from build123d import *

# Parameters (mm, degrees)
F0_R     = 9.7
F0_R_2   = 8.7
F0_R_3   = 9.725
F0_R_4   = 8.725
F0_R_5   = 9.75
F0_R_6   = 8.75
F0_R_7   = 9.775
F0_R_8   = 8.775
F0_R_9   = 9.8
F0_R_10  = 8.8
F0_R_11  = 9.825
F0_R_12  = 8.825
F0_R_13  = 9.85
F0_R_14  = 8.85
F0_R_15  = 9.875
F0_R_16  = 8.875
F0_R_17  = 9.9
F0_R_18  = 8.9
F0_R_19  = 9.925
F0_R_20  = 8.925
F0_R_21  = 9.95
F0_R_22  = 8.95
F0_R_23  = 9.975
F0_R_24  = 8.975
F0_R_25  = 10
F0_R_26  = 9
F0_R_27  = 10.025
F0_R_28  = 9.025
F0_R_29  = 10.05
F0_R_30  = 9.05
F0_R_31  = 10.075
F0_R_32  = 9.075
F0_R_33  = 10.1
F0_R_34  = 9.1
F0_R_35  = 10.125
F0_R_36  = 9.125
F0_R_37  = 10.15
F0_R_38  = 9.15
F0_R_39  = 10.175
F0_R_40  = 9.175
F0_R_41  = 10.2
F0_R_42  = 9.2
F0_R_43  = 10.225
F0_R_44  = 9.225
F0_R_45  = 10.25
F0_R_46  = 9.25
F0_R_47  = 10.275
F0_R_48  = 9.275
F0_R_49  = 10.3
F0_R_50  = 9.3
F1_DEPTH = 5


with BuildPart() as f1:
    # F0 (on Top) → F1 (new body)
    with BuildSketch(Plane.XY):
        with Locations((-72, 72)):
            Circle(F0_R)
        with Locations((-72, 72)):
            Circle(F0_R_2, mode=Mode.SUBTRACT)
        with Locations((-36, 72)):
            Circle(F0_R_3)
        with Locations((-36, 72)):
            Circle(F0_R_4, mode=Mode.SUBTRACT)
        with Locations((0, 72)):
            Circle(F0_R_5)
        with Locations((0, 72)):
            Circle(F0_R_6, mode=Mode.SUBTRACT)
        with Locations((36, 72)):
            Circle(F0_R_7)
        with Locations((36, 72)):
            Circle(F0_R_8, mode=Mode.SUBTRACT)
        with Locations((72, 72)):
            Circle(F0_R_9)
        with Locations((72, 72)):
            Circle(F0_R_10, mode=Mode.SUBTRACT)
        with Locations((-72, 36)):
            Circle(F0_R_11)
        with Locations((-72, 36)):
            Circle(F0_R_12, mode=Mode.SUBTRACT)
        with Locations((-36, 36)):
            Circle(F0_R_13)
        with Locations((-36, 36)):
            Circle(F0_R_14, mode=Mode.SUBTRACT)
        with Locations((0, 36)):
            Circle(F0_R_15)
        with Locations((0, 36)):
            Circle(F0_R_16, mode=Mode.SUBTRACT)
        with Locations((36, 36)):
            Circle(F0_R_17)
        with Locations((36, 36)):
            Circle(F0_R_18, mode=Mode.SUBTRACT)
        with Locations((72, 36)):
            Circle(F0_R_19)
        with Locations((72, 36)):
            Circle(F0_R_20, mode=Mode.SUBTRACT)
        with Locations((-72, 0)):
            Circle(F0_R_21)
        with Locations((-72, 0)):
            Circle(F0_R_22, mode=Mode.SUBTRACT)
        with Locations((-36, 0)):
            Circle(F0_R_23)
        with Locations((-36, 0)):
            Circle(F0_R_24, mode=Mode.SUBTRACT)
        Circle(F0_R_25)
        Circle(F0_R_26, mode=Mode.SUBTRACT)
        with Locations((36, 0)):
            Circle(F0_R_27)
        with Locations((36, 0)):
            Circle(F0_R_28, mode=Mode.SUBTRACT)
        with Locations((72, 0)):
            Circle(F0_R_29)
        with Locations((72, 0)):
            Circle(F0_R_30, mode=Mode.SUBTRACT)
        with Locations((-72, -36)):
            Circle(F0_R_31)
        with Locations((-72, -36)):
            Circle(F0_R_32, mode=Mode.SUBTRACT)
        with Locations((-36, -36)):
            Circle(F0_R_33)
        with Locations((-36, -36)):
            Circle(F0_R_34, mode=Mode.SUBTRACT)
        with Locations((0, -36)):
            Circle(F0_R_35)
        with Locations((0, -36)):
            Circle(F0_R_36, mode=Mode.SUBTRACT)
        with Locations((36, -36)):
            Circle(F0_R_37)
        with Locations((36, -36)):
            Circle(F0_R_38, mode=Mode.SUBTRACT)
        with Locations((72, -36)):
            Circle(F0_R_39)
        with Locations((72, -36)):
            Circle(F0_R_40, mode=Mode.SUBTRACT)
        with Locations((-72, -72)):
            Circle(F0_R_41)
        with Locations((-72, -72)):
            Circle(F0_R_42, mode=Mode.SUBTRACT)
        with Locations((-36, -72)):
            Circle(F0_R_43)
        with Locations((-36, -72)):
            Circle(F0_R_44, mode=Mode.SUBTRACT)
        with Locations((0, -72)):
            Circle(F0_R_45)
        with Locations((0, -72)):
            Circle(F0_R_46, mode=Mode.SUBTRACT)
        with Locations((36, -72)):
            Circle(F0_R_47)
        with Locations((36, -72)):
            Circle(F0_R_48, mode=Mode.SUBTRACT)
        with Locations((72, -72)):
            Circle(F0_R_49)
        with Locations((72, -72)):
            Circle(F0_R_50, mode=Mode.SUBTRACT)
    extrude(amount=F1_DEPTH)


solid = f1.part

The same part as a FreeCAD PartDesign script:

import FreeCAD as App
import Part
import Sketcher
from FreeCAD import Vector

doc = App.newDocument("Part")
body = doc.addObject("PartDesign::Body", "Body")
body.AllowCompound = True

sketch1 = body.newObject("Sketcher::SketchObject", "Sketch")
sketch1.AttachmentSupport = (doc.getObject("XY_Plane"), [""])
sketch1.MapMode = "FlatFace"
sketch1.addGeometry([
    Part.Circle(Vector(-72, 72, 0), Vector(0, 0, 1), 10),
    Part.Circle(Vector(-72, 72, 0), Vector(0, 0, 1), 9),
    Part.Circle(Vector(-36, 72, 0), Vector(0, 0, 1), 10),
    Part.Circle(Vector(-36, 72, 0), Vector(0, 0, 1), 9),
    Part.Circle(Vector(0, 72, 0), Vector(0, 0, 1), 10),
    Part.Circle(Vector(0, 72, 0), Vector(0, 0, 1), 9),
    Part.Circle(Vector(36, 72, 0), Vector(0, 0, 1), 10),
    Part.Circle(Vector(36, 72, 0), Vector(0, 0, 1), 9),
    Part.Circle(Vector(72, 72, 0), Vector(0, 0, 1), 10),
    Part.Circle(Vector(72, 72, 0), Vector(0, 0, 1), 9),
    Part.Circle(Vector(-72, 36, 0), Vector(0, 0, 1), 10),
    Part.Circle(Vector(-72, 36, 0), Vector(0, 0, 1), 9),
    Part.Circle(Vector(-36, 36, 0), Vector(0, 0, 1), 10),
    Part.Circle(Vector(-36, 36, 0), Vector(0, 0, 1), 9),
    Part.Circle(Vector(0, 36, 0), Vector(0, 0, 1), 10),
    Part.Circle(Vector(0, 36, 0), Vector(0, 0, 1), 9),
    Part.Circle(Vector(36, 36, 0), Vector(0, 0, 1), 10),
    Part.Circle(Vector(36, 36, 0), Vector(0, 0, 1), 9),
    Part.Circle(Vector(72, 36, 0), Vector(0, 0, 1), 10),
    Part.Circle(Vector(72, 36, 0), Vector(0, 0, 1), 9),
    Part.Circle(Vector(-72, 0, 0), Vector(0, 0, 1), 10),
    Part.Circle(Vector(-72, 0, 0), Vector(0, 0, 1), 9),
    Part.Circle(Vector(-36, 0, 0), Vector(0, 0, 1), 10),
    Part.Circle(Vector(-36, 0, 0), Vector(0, 0, 1), 9),
    Part.Circle(Vector(0, 0, 0), Vector(0, 0, 1), 10),
    Part.Circle(Vector(0, 0, 0), Vector(0, 0, 1), 9),
    Part.Circle(Vector(36, 0, 0), Vector(0, 0, 1), 10),
    Part.Circle(Vector(36, 0, 0), Vector(0, 0, 1), 9),
    Part.Circle(Vector(72, 0, 0), Vector(0, 0, 1), 10),
    Part.Circle(Vector(72, 0, 0), Vector(0, 0, 1), 9),
    Part.Circle(Vector(-72, -36, 0), Vector(0, 0, 1), 10),
    Part.Circle(Vector(-72, -36, 0), Vector(0, 0, 1), 9),
    Part.Circle(Vector(-36, -36, 0), Vector(0, 0, 1), 10),
    Part.Circle(Vector(-36, -36, 0), Vector(0, 0, 1), 9),
    Part.Circle(Vector(0, -36, 0), Vector(0, 0, 1), 10),
    Part.Circle(Vector(0, -36, 0), Vector(0, 0, 1), 9),
    Part.Circle(Vector(36, -36, 0), Vector(0, 0, 1), 10),
    Part.Circle(Vector(36, -36, 0), Vector(0, 0, 1), 9),
    Part.Circle(Vector(72, -36, 0), Vector(0, 0, 1), 10),
    Part.Circle(Vector(72, -36, 0), Vector(0, 0, 1), 9),
    Part.Circle(Vector(-72, -72, 0), Vector(0, 0, 1), 10),
    Part.Circle(Vector(-72, -72, 0), Vector(0, 0, 1), 9),
    Part.Circle(Vector(-36, -72, 0), Vector(0, 0, 1), 10),
    Part.Circle(Vector(-36, -72, 0), Vector(0, 0, 1), 9),
    Part.Circle(Vector(0, -72, 0), Vector(0, 0, 1), 10),
    Part.Circle(Vector(0, -72, 0), Vector(0, 0, 1), 9),
    Part.Circle(Vector(36, -72, 0), Vector(0, 0, 1), 10),
    Part.Circle(Vector(36, -72, 0), Vector(0, 0, 1), 9),
    Part.Circle(Vector(72, -72, 0), Vector(0, 0, 1), 10),
    Part.Circle(Vector(72, -72, 0), Vector(0, 0, 1), 9),
], False)
sketch1.addConstraint([
    Sketcher.Constraint("Coincident", 24, 3, -1, 1),
    Sketcher.Constraint("Coincident", 25, 3, -1, 1),
    Sketcher.Constraint("Coincident", 1, 3, 0, 3),
    Sketcher.Constraint("Coincident", 3, 3, 2, 3),
    Sketcher.Constraint("Coincident", 5, 3, 4, 3),
    Sketcher.Constraint("Coincident", 7, 3, 6, 3),
    Sketcher.Constraint("Coincident", 9, 3, 8, 3),
    Sketcher.Constraint("Coincident", 11, 3, 10, 3),
    Sketcher.Constraint("Coincident", 13, 3, 12, 3),
    Sketcher.Constraint("Coincident", 15, 3, 14, 3),
    Sketcher.Constraint("Coincident", 17, 3, 16, 3),
    Sketcher.Constraint("Coincident", 19, 3, 18, 3),
    Sketcher.Constraint("Coincident", 21, 3, 20, 3),
    Sketcher.Constraint("Coincident", 23, 3, 22, 3),
    Sketcher.Constraint("Coincident", 27, 3, 26, 3),
    Sketcher.Constraint("Coincident", 29, 3, 28, 3),
    Sketcher.Constraint("Coincident", 31, 3, 30, 3),
    Sketcher.Constraint("Coincident", 33, 3, 32, 3),
    Sketcher.Constraint("Coincident", 35, 3, 34, 3),
    Sketcher.Constraint("Coincident", 37, 3, 36, 3),
    Sketcher.Constraint("Coincident", 39, 3, 38, 3),
    Sketcher.Constraint("Coincident", 41, 3, 40, 3),
    Sketcher.Constraint("Coincident", 43, 3, 42, 3),
    Sketcher.Constraint("Coincident", 45, 3, 44, 3),
    Sketcher.Constraint("Coincident", 47, 3, 46, 3),
    Sketcher.Constraint("Coincident", 49, 3, 48, 3),
    Sketcher.Constraint("Symmetric", 22, 3, 26, 3, -1, 1),
    Sketcher.Constraint("Symmetric", 20, 3, 28, 3, -1, 1),
    Sketcher.Constraint("Symmetric", 18, 3, 30, 3, -1, 1),
    Sketcher.Constraint("Symmetric", 16, 3, 32, 3, -1, 1),
    Sketcher.Constraint("Symmetric", 14, 3, 34, 3, -1, 1),
    Sketcher.Constraint("Symmetric", 12, 3, 36, 3, -1, 1),
    Sketcher.Constraint("Symmetric", 10, 3, 38, 3, -1, 1),
    Sketcher.Constraint("Symmetric", 8, 3, 40, 3, -1, 1),
    Sketcher.Constraint("Symmetric", 6, 3, 42, 3, -1, 1),
    Sketcher.Constraint("Symmetric", 4, 3, 44, 3, -1, 1),
    Sketcher.Constraint("Symmetric", 2, 3, 46, 3, -1, 1),
    Sketcher.Constraint("Symmetric", 0, 3, 48, 3, -1, 1),
    Sketcher.Constraint("Symmetric", 2, 3, 6, 3, -2),
    Sketcher.Constraint("Symmetric", 0, 3, 8, 3, -2),
    Sketcher.Constraint("Symmetric", 12, 3, 16, 3, -2),
    Sketcher.Constraint("Symmetric", 10, 3, 18, 3, -2),
    Sketcher.Constraint("PointOnObject", 4, 3, -2),
    Sketcher.Constraint("PointOnObject", 14, 3, -2),
    Sketcher.Constraint("PointOnObject", 20, 3, -1),
    Sketcher.Constraint("PointOnObject", 22, 3, -1),
    Sketcher.Constraint("Horizontal", 1, 3, 2, 3),
    Sketcher.Constraint("Horizontal", 3, 3, 4, 3),
    Sketcher.Constraint("Horizontal", 11, 3, 12, 3),
    Sketcher.Constraint("Horizontal", 13, 3, 14, 3),
    Sketcher.Constraint("Vertical", 1, 3, 10, 3),
    Sketcher.Constraint("Vertical", 3, 3, 12, 3),
    Sketcher.Constraint("Vertical", 11, 3, 20, 3),
    Sketcher.Constraint("Vertical", 13, 3, 22, 3),
    Sketcher.Constraint("Diameter", 24, 20.0),
    Sketcher.Constraint("Diameter", 25, 18.0),
    Sketcher.Constraint("Diameter", 0, 19.4),
    Sketcher.Constraint("Diameter", 1, 17.4),
    Sketcher.Constraint("Diameter", 4, 19.5),
    Sketcher.Constraint("Diameter", 5, 17.5),
    Sketcher.Constraint("Diameter", 8, 19.6),
    Sketcher.Constraint("Diameter", 9, 17.6),
    Sketcher.Constraint("Diameter", 12, 19.7),
    Sketcher.Constraint("Diameter", 13, 17.7),
    Sketcher.Constraint("Diameter", 16, 19.8),
    Sketcher.Constraint("Diameter", 17, 17.8),
    Sketcher.Constraint("Diameter", 20, 19.9),
    Sketcher.Constraint("Diameter", 21, 17.9),
    Sketcher.Constraint("Diameter", 28, 20.1),
    Sketcher.Constraint("Diameter", 29, 18.1),
    Sketcher.Constraint("Diameter", 32, 20.2),
    Sketcher.Constraint("Diameter", 33, 18.2),
    Sketcher.Constraint("Diameter", 36, 20.3),
    Sketcher.Constraint("Diameter", 37, 18.3),
    Sketcher.Constraint("Diameter", 40, 20.4),
    Sketcher.Constraint("Diameter", 41, 18.4),
    Sketcher.Constraint("Diameter", 44, 20.5),
    Sketcher.Constraint("Diameter", 45, 18.5),
    Sketcher.Constraint("Diameter", 48, 20.6),
    Sketcher.Constraint("Diameter", 49, 18.6),
    Sketcher.Constraint("Diameter", 2, 19.45),
    Sketcher.Constraint("Diameter", 3, 17.45),
    Sketcher.Constraint("Diameter", 6, 19.55),
    Sketcher.Constraint("Diameter", 7, 17.55),
    Sketcher.Constraint("Diameter", 10, 19.65),
    Sketcher.Constraint("Diameter", 11, 17.65),
    Sketcher.Constraint("Diameter", 14, 19.75),
    Sketcher.Constraint("Diameter", 15, 17.75),
    Sketcher.Constraint("Diameter", 18, 19.85),
    Sketcher.Constraint("Diameter", 19, 17.85),
    Sketcher.Constraint("Diameter", 22, 19.95),
    Sketcher.Constraint("Diameter", 23, 17.95),
    Sketcher.Constraint("Diameter", 26, 20.05),
    Sketcher.Constraint("Diameter", 27, 18.05),
    Sketcher.Constraint("Diameter", 30, 20.15),
    Sketcher.Constraint("Diameter", 31, 18.15),
    Sketcher.Constraint("Diameter", 34, 20.25),
    Sketcher.Constraint("Diameter", 35, 18.25),
    Sketcher.Constraint("Diameter", 38, 20.35),
    Sketcher.Constraint("Diameter", 39, 18.35),
    Sketcher.Constraint("Diameter", 42, 20.45),
    Sketcher.Constraint("Diameter", 43, 18.45),
    Sketcher.Constraint("Diameter", 46, 20.55),
    Sketcher.Constraint("Diameter", 47, 18.55),
    Sketcher.Constraint("DistanceX", 0, 3, -1, 1, 72.0),
    Sketcher.Constraint("DistanceY", -1, 1, 0, 3, 72.0),
    Sketcher.Constraint("DistanceX", 2, 3, -1, 1, 36.0),
    Sketcher.Constraint("DistanceY", -1, 1, 10, 3, 36.0),
])
pad1 = body.newObject("PartDesign::Pad", "Pad")
pad1.Profile = sketch1
pad1.Length = 5

doc.recompute()
